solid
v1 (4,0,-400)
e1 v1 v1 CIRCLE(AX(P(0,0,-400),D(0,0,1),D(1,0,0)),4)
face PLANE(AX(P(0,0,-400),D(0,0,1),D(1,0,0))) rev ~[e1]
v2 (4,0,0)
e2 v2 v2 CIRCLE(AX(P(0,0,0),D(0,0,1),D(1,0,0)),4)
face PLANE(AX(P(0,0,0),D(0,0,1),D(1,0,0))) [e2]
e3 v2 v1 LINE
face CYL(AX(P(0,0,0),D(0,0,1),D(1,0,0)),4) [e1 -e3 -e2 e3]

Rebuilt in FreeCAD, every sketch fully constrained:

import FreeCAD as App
import Part
import Sketcher
from FreeCAD import Vector

doc = App.newDocument("Part")
params = doc.addObject("Spreadsheet::Sheet", "Params")
for row, (alias, value) in enumerate([
    ("sketch1_diameter", "8 mm"),
    ("pad1_length", "400 mm"),
], start=1):
    params.set(f"A{row}", alias)
    params.set(f"B{row}", "=" + value)
    params.setAlias(f"B{row}", alias)

body = doc.addObject("PartDesign::Body", "Body")

# Sketch on XY plane
sketch1 = doc.addObject("Sketcher::SketchObject", "Sketch")
body.addObject(sketch1)
sketch1.AttachmentSupport = (doc.XY_Plane, [""])
sketch1.MapMode = "FlatFace"
sketch1.addGeometry(Part.Circle(Vector(0, 0, 0), Vector(0, 0, 1), 4), False)
sketch1.addConstraint([
    Sketcher.Constraint("Coincident", 0, 3, -1, 1),
    Sketcher.Constraint("Diameter", 0, 8.0),
])
sketch1.setExpression("Constraints[1]", "Params.sketch1_diameter")
pad1 = doc.addObject("PartDesign::Pad", "Pad")
body.addObject(pad1)
pad1.Profile = sketch1
pad1.setExpression("Length", "Params.pad1_length")
pad1.Reversed = True

doc.recompute()
